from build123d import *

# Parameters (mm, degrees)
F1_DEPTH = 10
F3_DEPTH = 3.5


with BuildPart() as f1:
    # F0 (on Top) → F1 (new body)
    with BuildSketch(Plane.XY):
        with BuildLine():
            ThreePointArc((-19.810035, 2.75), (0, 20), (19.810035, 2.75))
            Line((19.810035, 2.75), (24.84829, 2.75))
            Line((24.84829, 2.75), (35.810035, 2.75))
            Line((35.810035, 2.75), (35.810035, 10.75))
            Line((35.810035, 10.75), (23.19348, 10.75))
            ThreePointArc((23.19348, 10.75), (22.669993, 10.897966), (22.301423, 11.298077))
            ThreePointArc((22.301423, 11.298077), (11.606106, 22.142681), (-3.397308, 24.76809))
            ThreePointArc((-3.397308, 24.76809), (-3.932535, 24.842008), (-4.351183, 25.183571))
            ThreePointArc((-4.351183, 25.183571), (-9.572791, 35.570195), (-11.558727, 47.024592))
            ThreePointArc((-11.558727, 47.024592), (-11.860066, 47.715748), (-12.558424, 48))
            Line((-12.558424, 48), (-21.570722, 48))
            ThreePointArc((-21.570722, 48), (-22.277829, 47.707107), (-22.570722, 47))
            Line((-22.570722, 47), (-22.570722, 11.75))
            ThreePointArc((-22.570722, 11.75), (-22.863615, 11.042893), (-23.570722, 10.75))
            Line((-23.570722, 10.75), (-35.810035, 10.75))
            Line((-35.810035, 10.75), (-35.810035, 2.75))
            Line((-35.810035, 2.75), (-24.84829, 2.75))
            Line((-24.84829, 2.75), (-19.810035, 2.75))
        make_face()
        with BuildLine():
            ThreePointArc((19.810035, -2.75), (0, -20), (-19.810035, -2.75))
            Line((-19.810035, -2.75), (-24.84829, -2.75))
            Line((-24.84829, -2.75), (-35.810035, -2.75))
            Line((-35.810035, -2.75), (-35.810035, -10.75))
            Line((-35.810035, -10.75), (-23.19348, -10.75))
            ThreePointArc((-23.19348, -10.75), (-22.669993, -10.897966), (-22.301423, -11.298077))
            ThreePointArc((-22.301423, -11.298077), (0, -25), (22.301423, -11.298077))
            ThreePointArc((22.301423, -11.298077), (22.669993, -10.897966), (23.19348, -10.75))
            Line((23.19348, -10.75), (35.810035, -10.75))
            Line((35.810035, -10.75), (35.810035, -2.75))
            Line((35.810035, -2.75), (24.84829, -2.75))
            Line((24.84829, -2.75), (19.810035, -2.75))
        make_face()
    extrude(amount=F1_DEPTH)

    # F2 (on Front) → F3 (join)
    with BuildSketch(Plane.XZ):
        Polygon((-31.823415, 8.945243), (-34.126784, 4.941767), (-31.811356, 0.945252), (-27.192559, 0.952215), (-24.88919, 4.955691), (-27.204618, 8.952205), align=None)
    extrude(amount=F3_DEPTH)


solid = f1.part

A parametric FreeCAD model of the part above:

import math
import FreeCAD as App
import Part
import Sketcher
Q = App.Units.Quantity

doc = App.newDocument("Part")
params = doc.addObject("Spreadsheet::Sheet", "Params")
for row, (alias, value) in enumerate([
    ("sketch1_radius", "20 mm"),
    ("sketch1_radius2", "0.999998 mm"),
    ("sketch1_radius3", "24.999998 mm"),
    ("sketch1_width", "16 mm"),
    ("sketch1_height", "8 mm"),
    ("pad1_length", "10 mm"),
    ("pad2_length", "3.5 mm"),
], start=1):
    params.set(f"A{row}", alias)
    params.set(f"B{row}", "=" + value)
    params.setAlias(f"B{row}", alias)

body = doc.addObject("PartDesign::Body", "Body")
body.AllowCompound = True

# Sketch on XY plane
sketch1 = body.newObject("Sketcher::SketchObject", "Sketch")
sketch1.AttachmentSupport = (doc.getObject("XY_Plane"), [""])
sketch1.MapMode = "FlatFace"
sketch1.addGeometry(Part.ArcOfCircle(Part.Circle(App.Vector(0, 0, 0), App.Vector(0, 0, 1), 20), math.radians(8), math.radians(172)), False)
sketch1.addGeometry(Part.LineSegment(App.Vector(19.8, 2.8, 0), App.Vector(35.8, 2.8, 0)), False)
sketch1.addGeometry(Part.LineSegment(App.Vector(35.8, 2.8, 0), App.Vector(35.8, 10.8, 0)), False)
sketch1.addGeometry(Part.LineSegment(App.Vector(35.8, 10.8, 0), App.Vector(23.2, 10.8, 0)), False)
sketch1.addGeometry(Part.ArcOfCircle(Part.Circle(App.Vector(23.2, 11.7, 0), App.Vector(0, 0, 1), 1), math.radians(-153), math.radians(-90)), False)
sketch1.addGeometry(Part.ArcOfCircle(Part.Circle(App.Vector(0, 0, 0), App.Vector(0, 0, 1), 25), math.radians(27), math.radians(98)), False)
sketch1.addGeometry(Part.ArcOfCircle(Part.Circle(App.Vector(-3.5, 25.8, 0), App.Vector(0, 0, 1), 1), math.radians(-145), math.radians(-82)), False)
sketch1.addGeometry(Part.ArcOfCircle(Part.Circle(App.Vector(28.1, 48, 0), App.Vector(0, 0, 1), 39.7), math.radians(-179), math.radians(-145)), False)
sketch1.addGeometry(Part.ArcOfCircle(Part.Circle(App.Vector(-12.6, 47, 0), App.Vector(0, 0, 1), 1), math.radians(1), math.radians(90)), False)
sketch1.addGeometry(Part.LineSegment(App.Vector(-12.6, 48, 0), App.Vector(-21.6, 48, 0)), False)
sketch1.addGeometry(Part.ArcOfCircle(Part.Circle(App.Vector(-21.6, 47, 0), App.Vector(0, 0, 1), 1), math.radians(90), math.radians(180)), False)
sketch1.addGeometry(Part.LineSegment(App.Vector(-22.6, 47, 0), App.Vector(-22.6, 11.8, 0)), False)
sketch1.addGeometry(Part.ArcOfCircle(Part.Circle(App.Vector(-23.6, 11.7, 0), App.Vector(0, 0, 1), 1), math.radians(-90), math.radians(0)), False)
sketch1.addGeometry(Part.LineSegment(App.Vector(-23.6, 10.8, 0), App.Vector(-35.8, 10.8, 0)), False)
sketch1.addGeometry(Part.LineSegment(App.Vector(-35.8, 10.8, 0), App.Vector(-35.8, 2.8, 0)), False)
sketch1.addGeometry(Part.LineSegment(App.Vector(-35.8, 2.8, 0), App.Vector(-19.8, 2.8, 0)), False)
sketch1.addGeometry(Part.ArcOfCircle(Part.Circle(App.Vector(0, 0, 0), App.Vector(0, 0, 1), 20), math.radians(-172), math.radians(-8)), False)
sketch1.addGeometry(Part.LineSegment(App.Vector(-19.8, -2.8, 0), App.Vector(-35.8, -2.8, 0)), False)
sketch1.addGeometry(Part.LineSegment(App.Vector(-35.8, -2.8, 0), App.Vector(-35.8, -10.8, 0)), False)
sketch1.addGeometry(Part.LineSegment(App.Vector(-35.8, -10.8, 0), App.Vector(-23.2, -10.8, 0)), False)
sketch1.addGeometry(Part.ArcOfCircle(Part.Circle(App.Vector(-23.2, -11.7, 0), App.Vector(0, 0, 1), 1), math.radians(27), math.radians(90)), False)
sketch1.addGeometry(Part.ArcOfCircle(Part.Circle(App.Vector(0, 0, 0), App.Vector(0, 0, 1), 25), math.radians(-153), math.radians(-27)), False)
sketch1.addGeometry(Part.ArcOfCircle(Part.Circle(App.Vector(23.2, -11.7, 0), App.Vector(0, 0, 1), 1), math.radians(90), math.radians(153)), False)
sketch1.addGeometry(Part.LineSegment(App.Vector(23.2, -10.8, 0), App.Vector(35.8, -10.8, 0)), False)
sketch1.addGeometry(Part.LineSegment(App.Vector(35.8, -10.8, 0), App.Vector(35.8, -2.8, 0)), False)
sketch1.addGeometry(Part.LineSegment(App.Vector(35.8, -2.8, 0), App.Vector(19.8, -2.8, 0)), False)
sketch1.addConstraint(Sketcher.Constraint("Coincident", 0, 1, 1, 1))
sketch1.addConstraint(Sketcher.Constraint("Coincident", 1, 2, 2, 1))
sketch1.addConstraint(Sketcher.Constraint("Coincident", 2, 2, 3, 1))
sketch1.addConstraint(Sketcher.Constraint("Tangent", 3, 2, 4, 2))
sketch1.addConstraint(Sketcher.Constraint("Tangent", 4, 1, 5, 1))
sketch1.addConstraint(Sketcher.Constraint("Tangent", 5, 2, 6, 2))
sketch1.addConstraint(Sketcher.Constraint("Coincident", 6, 1, 7, 2))
sketch1.addConstraint(Sketcher.Constraint("Tangent", 7, 1, 8, 1))
sketch1.addConstraint(Sketcher.Constraint("Tangent", 8, 2, 9, 1))
sketch1.addConstraint(Sketcher.Constraint("Tangent", 9, 2, 10, 1))
sketch1.addConstraint(Sketcher.Constraint("Tangent", 10, 2, 11, 1))
sketch1.addConstraint(Sketcher.Constraint("Tangent", 11, 2, 12, 2))
sketch1.addConstraint(Sketcher.Constraint("Tangent", 12, 1, 13, 1))
sketch1.addConstraint(Sketcher.Constraint("Coincident", 13, 2, 14, 1))
sketch1.addConstraint(Sketcher.Constraint("Coincident", 14, 2, 15, 1))
sketch1.addConstraint(Sketcher.Constraint("Coincident", 15, 2, 0, 2))
sketch1.addConstraint(Sketcher.Constraint("Coincident", 16, 1, 17, 1))
sketch1.addConstraint(Sketcher.Constraint("Coincident", 17, 2, 18, 1))
sketch1.addConstraint(Sketcher.Constraint("Coincident", 18, 2, 19, 1))
sketch1.addConstraint(Sketcher.Constraint("Tangent", 19, 2, 20, 2))
sketch1.addConstraint(Sketcher.Constraint("Tangent", 20, 1, 21, 1))
sketch1.addConstraint(Sketcher.Constraint("Tangent", 21, 2, 22, 2))
sketch1.addConstraint(Sketcher.Constraint("Tangent", 22, 1, 23, 1))
sketch1.addConstraint(Sketcher.Constraint("Coincident", 23, 2, 24, 1))
sketch1.addConstraint(Sketcher.Constraint("Coincident", 24, 2, 25, 1))
sketch1.addConstraint(Sketcher.Constraint("Coincident", 25, 2, 16, 2))
sketch1.addConstraint(Sketcher.Constraint("Horizontal", 1))
sketch1.addConstraint(Sketcher.Constraint("Vertical", 2))
sketch1.addConstraint(Sketcher.Constraint("Horizontal", 3))
sketch1.addConstraint(Sketcher.Constraint("Horizontal", 9))
sketch1.addConstraint(Sketcher.Constraint("Vertical", 11))
sketch1.addConstraint(Sketcher.Constraint("Horizontal", 13))
sketch1.addConstraint(Sketcher.Constraint("Vertical", 14))
sketch1.addConstraint(Sketcher.Constraint("Horizontal", 15))
sketch1.addConstraint(Sketcher.Constraint("Horizontal", 17))
sketch1.addConstraint(Sketcher.Constraint("Vertical", 18))
sketch1.addConstraint(Sketcher.Constraint("Horizontal", 19))
sketch1.addConstraint(Sketcher.Constraint("Horizontal", 23))
sketch1.addConstraint(Sketcher.Constraint("Vertical", 24))
sketch1.addConstraint(Sketcher.Constraint("Horizontal", 25))
sketch1.addConstraint(Sketcher.Constraint("Coincident", 0, 3, -1, 1))
sketch1.addConstraint(Sketcher.Constraint("Coincident", 5, 3, -1, 1))
sketch1.addConstraint(Sketcher.Constraint("Coincident", 16, 3, -1, 1))
sketch1.addConstraint(Sketcher.Constraint("Coincident", 21, 3, -1, 1))
sketch1.addConstraint(Sketcher.Constraint("Equal", 4, 6))
sketch1.addConstraint(Sketcher.Constraint("Equal", 4, 8))
sketch1.addConstraint(Sketcher.Constraint("Equal", 8, 10))
sketch1.addConstraint(Sketcher.Constraint("Equal", 10, 12))
sketch1.addConstraint(Sketcher.Constraint("Equal", 0, 16))
sketch1.addConstraint(Sketcher.Constraint("Equal", 12, 20))
sketch1.addConstraint(Sketcher.Constraint("Equal", 20, 22))
sketch1.addConstraint(Sketcher.Constraint("Symmetric", 4, 3, 20, 3, -1, 1))
sketch1.addConstraint(Sketcher.Constraint("Symmetric", 1, 2, 17, 2, -1, 1))
sketch1.addConstraint(Sketcher.Constraint("Symmetric", 13, 2, 23, 2, -1, 1))
sketch1.addConstraint(Sketcher.Constraint("Symmetric", 2, 2, 13, 2, -2))
sketch1.addConstraint(Sketcher.Constraint("Horizontal", 7, 3, 8, 2))
sketch1.addConstraint(Sketcher.Constraint("Horizontal", 1, 2, 14, 2))
sketch1.addConstraint(Sketcher.Constraint("Horizontal", 17, 2, 24, 2))
sketch1.addConstraint(Sketcher.Constraint("Radius", 0, Q("20 mm")))
sketch1.addConstraint(Sketcher.Constraint("Radius", 4, Q("0.999998 mm")))
sketch1.addConstraint(Sketcher.Constraint("Radius", 5, Q("24.999998 mm")))
sketch1.addConstraint(Sketcher.Constraint("DistanceX", 1, 1, 1, 2, Q("16 mm")))
sketch1.addConstraint(Sketcher.Constraint("DistanceY", 2, 1, 2, 2, Q("8 mm")))
sketch1.addConstraint(Sketcher.Constraint("DistanceY", -1, 1, 7, 3, Q("47.999999 mm")))
sketch1.addConstraint(Sketcher.Constraint("DistanceY", 11, 2, 11, 1, Q("35.25 mm")))
sketch1.addConstraint(Sketcher.Constraint("Radius", 7, Q("39.663968 mm")))
sketch1.addConstraint(Sketcher.Constraint("DistanceX", 6, 3, -1, 1, Q("3.533201 mm")))
sketch1.addConstraint(Sketcher.Constraint("DistanceX", 10, 3, 8, 3, Q("9.012298 mm")))
sketch1.addConstraint(Sketcher.Constraint("DistanceY", -1, 1, 6, 1, Q("25.183571 mm")))
sketch1.setExpression("Constraints[58]", "Params.sketch1_radius")
sketch1.setExpression("Constraints[59]", "Params.sketch1_radius2")
sketch1.setExpression("Constraints[60]", "Params.sketch1_radius3")
sketch1.setExpression("Constraints[61]", "Params.sketch1_width")
sketch1.setExpression("Constraints[62]", "Params.sketch1_height")
pad1 = body.newObject("PartDesign::Pad", "Pad")
pad1.Profile = sketch1
pad1.setExpression("Length", "Params.pad1_length")

# Sketch on XZ plane
sketch2 = body.newObject("Sketcher::SketchObject", "Sketch001")
sketch2.AttachmentSupport = (doc.getObject("XZ_Plane"), [""])
sketch2.MapMode = "FlatFace"
sketch2.addGeometry(Part.LineSegment(App.Vector(-31.8, 8.9, 0), App.Vector(-34.1, 4.9, 0)), False)
sketch2.addGeometry(Part.LineSegment(App.Vector(-34.1, 4.9, 0), App.Vector(-31.8, 0.9, 0)), False)
sketch2.addGeometry(Part.LineSegment(App.Vector(-31.8, 0.9, 0), App.Vector(-27.2, 1, 0)), False)
sketch2.addGeometry(Part.LineSegment(App.Vector(-27.2, 1, 0), App.Vector(-24.9, 5, 0)), False)
sketch2.addGeometry(Part.LineSegment(App.Vector(-24.9, 5, 0), App.Vector(-27.2, 9, 0)), False)
sketch2.addGeometry(Part.LineSegment(App.Vector(-27.2, 9, 0), App.Vector(-31.8, 8.9, 0)), False)
sketch2.addConstraint(Sketcher.Constraint("Coincident", 0, 2, 1, 1))
sketch2.addConstraint(Sketcher.Constraint("Coincident", 1, 2, 2, 1))
sketch2.addConstraint(Sketcher.Constraint("Coincident", 2, 2, 3, 1))
sketch2.addConstraint(Sketcher.Constraint("Coincident", 3, 2, 4, 1))
sketch2.addConstraint(Sketcher.Constraint("Coincident", 4, 2, 5, 1))
sketch2.addConstraint(Sketcher.Constraint("Coincident", 5, 2, 0, 1))
sketch2.addConstraint(Sketcher.Constraint("Parallel", 0, 3))
sketch2.addConstraint(Sketcher.Constraint("Parallel", 1, 4))
sketch2.addConstraint(Sketcher.Constraint("Parallel", 2, 5))
sketch2.addConstraint(Sketcher.Constraint("Equal", 0, 1))
sketch2.addConstraint(Sketcher.Constraint("Equal", 1, 2))
sketch2.addConstraint(Sketcher.Constraint("Equal", 2, 3))
sketch2.addConstraint(Sketcher.Constraint("Distance", 0, Q("4.618802 mm")))
sketch2.addConstraint(Sketcher.Constraint("DistanceY", -1, 1, 1, 2, Q("0.945252 mm")))
sketch2.addConstraint(Sketcher.Constraint("DistanceX", 2, 2, -1, 1, Q("27.192559 mm")))
sketch2.addConstraint(Sketcher.Constraint("DistanceX", 3, 2, -1, 1, Q("24.88919 mm")))
sketch2.addConstraint(Sketcher.Constraint("DistanceY", -1, 1, 3, 2, Q("4.955691 mm")))
sketch2.addConstraint(Sketcher.Constraint("DistanceX", 4, 2, -1, 1, Q("27.204618 mm")))
pad2 = body.newObject("PartDesign::Pad", "Pad001")
pad2.Profile = sketch2
pad2.setExpression("Length", "Params.pad2_length")

doc.recompute()
